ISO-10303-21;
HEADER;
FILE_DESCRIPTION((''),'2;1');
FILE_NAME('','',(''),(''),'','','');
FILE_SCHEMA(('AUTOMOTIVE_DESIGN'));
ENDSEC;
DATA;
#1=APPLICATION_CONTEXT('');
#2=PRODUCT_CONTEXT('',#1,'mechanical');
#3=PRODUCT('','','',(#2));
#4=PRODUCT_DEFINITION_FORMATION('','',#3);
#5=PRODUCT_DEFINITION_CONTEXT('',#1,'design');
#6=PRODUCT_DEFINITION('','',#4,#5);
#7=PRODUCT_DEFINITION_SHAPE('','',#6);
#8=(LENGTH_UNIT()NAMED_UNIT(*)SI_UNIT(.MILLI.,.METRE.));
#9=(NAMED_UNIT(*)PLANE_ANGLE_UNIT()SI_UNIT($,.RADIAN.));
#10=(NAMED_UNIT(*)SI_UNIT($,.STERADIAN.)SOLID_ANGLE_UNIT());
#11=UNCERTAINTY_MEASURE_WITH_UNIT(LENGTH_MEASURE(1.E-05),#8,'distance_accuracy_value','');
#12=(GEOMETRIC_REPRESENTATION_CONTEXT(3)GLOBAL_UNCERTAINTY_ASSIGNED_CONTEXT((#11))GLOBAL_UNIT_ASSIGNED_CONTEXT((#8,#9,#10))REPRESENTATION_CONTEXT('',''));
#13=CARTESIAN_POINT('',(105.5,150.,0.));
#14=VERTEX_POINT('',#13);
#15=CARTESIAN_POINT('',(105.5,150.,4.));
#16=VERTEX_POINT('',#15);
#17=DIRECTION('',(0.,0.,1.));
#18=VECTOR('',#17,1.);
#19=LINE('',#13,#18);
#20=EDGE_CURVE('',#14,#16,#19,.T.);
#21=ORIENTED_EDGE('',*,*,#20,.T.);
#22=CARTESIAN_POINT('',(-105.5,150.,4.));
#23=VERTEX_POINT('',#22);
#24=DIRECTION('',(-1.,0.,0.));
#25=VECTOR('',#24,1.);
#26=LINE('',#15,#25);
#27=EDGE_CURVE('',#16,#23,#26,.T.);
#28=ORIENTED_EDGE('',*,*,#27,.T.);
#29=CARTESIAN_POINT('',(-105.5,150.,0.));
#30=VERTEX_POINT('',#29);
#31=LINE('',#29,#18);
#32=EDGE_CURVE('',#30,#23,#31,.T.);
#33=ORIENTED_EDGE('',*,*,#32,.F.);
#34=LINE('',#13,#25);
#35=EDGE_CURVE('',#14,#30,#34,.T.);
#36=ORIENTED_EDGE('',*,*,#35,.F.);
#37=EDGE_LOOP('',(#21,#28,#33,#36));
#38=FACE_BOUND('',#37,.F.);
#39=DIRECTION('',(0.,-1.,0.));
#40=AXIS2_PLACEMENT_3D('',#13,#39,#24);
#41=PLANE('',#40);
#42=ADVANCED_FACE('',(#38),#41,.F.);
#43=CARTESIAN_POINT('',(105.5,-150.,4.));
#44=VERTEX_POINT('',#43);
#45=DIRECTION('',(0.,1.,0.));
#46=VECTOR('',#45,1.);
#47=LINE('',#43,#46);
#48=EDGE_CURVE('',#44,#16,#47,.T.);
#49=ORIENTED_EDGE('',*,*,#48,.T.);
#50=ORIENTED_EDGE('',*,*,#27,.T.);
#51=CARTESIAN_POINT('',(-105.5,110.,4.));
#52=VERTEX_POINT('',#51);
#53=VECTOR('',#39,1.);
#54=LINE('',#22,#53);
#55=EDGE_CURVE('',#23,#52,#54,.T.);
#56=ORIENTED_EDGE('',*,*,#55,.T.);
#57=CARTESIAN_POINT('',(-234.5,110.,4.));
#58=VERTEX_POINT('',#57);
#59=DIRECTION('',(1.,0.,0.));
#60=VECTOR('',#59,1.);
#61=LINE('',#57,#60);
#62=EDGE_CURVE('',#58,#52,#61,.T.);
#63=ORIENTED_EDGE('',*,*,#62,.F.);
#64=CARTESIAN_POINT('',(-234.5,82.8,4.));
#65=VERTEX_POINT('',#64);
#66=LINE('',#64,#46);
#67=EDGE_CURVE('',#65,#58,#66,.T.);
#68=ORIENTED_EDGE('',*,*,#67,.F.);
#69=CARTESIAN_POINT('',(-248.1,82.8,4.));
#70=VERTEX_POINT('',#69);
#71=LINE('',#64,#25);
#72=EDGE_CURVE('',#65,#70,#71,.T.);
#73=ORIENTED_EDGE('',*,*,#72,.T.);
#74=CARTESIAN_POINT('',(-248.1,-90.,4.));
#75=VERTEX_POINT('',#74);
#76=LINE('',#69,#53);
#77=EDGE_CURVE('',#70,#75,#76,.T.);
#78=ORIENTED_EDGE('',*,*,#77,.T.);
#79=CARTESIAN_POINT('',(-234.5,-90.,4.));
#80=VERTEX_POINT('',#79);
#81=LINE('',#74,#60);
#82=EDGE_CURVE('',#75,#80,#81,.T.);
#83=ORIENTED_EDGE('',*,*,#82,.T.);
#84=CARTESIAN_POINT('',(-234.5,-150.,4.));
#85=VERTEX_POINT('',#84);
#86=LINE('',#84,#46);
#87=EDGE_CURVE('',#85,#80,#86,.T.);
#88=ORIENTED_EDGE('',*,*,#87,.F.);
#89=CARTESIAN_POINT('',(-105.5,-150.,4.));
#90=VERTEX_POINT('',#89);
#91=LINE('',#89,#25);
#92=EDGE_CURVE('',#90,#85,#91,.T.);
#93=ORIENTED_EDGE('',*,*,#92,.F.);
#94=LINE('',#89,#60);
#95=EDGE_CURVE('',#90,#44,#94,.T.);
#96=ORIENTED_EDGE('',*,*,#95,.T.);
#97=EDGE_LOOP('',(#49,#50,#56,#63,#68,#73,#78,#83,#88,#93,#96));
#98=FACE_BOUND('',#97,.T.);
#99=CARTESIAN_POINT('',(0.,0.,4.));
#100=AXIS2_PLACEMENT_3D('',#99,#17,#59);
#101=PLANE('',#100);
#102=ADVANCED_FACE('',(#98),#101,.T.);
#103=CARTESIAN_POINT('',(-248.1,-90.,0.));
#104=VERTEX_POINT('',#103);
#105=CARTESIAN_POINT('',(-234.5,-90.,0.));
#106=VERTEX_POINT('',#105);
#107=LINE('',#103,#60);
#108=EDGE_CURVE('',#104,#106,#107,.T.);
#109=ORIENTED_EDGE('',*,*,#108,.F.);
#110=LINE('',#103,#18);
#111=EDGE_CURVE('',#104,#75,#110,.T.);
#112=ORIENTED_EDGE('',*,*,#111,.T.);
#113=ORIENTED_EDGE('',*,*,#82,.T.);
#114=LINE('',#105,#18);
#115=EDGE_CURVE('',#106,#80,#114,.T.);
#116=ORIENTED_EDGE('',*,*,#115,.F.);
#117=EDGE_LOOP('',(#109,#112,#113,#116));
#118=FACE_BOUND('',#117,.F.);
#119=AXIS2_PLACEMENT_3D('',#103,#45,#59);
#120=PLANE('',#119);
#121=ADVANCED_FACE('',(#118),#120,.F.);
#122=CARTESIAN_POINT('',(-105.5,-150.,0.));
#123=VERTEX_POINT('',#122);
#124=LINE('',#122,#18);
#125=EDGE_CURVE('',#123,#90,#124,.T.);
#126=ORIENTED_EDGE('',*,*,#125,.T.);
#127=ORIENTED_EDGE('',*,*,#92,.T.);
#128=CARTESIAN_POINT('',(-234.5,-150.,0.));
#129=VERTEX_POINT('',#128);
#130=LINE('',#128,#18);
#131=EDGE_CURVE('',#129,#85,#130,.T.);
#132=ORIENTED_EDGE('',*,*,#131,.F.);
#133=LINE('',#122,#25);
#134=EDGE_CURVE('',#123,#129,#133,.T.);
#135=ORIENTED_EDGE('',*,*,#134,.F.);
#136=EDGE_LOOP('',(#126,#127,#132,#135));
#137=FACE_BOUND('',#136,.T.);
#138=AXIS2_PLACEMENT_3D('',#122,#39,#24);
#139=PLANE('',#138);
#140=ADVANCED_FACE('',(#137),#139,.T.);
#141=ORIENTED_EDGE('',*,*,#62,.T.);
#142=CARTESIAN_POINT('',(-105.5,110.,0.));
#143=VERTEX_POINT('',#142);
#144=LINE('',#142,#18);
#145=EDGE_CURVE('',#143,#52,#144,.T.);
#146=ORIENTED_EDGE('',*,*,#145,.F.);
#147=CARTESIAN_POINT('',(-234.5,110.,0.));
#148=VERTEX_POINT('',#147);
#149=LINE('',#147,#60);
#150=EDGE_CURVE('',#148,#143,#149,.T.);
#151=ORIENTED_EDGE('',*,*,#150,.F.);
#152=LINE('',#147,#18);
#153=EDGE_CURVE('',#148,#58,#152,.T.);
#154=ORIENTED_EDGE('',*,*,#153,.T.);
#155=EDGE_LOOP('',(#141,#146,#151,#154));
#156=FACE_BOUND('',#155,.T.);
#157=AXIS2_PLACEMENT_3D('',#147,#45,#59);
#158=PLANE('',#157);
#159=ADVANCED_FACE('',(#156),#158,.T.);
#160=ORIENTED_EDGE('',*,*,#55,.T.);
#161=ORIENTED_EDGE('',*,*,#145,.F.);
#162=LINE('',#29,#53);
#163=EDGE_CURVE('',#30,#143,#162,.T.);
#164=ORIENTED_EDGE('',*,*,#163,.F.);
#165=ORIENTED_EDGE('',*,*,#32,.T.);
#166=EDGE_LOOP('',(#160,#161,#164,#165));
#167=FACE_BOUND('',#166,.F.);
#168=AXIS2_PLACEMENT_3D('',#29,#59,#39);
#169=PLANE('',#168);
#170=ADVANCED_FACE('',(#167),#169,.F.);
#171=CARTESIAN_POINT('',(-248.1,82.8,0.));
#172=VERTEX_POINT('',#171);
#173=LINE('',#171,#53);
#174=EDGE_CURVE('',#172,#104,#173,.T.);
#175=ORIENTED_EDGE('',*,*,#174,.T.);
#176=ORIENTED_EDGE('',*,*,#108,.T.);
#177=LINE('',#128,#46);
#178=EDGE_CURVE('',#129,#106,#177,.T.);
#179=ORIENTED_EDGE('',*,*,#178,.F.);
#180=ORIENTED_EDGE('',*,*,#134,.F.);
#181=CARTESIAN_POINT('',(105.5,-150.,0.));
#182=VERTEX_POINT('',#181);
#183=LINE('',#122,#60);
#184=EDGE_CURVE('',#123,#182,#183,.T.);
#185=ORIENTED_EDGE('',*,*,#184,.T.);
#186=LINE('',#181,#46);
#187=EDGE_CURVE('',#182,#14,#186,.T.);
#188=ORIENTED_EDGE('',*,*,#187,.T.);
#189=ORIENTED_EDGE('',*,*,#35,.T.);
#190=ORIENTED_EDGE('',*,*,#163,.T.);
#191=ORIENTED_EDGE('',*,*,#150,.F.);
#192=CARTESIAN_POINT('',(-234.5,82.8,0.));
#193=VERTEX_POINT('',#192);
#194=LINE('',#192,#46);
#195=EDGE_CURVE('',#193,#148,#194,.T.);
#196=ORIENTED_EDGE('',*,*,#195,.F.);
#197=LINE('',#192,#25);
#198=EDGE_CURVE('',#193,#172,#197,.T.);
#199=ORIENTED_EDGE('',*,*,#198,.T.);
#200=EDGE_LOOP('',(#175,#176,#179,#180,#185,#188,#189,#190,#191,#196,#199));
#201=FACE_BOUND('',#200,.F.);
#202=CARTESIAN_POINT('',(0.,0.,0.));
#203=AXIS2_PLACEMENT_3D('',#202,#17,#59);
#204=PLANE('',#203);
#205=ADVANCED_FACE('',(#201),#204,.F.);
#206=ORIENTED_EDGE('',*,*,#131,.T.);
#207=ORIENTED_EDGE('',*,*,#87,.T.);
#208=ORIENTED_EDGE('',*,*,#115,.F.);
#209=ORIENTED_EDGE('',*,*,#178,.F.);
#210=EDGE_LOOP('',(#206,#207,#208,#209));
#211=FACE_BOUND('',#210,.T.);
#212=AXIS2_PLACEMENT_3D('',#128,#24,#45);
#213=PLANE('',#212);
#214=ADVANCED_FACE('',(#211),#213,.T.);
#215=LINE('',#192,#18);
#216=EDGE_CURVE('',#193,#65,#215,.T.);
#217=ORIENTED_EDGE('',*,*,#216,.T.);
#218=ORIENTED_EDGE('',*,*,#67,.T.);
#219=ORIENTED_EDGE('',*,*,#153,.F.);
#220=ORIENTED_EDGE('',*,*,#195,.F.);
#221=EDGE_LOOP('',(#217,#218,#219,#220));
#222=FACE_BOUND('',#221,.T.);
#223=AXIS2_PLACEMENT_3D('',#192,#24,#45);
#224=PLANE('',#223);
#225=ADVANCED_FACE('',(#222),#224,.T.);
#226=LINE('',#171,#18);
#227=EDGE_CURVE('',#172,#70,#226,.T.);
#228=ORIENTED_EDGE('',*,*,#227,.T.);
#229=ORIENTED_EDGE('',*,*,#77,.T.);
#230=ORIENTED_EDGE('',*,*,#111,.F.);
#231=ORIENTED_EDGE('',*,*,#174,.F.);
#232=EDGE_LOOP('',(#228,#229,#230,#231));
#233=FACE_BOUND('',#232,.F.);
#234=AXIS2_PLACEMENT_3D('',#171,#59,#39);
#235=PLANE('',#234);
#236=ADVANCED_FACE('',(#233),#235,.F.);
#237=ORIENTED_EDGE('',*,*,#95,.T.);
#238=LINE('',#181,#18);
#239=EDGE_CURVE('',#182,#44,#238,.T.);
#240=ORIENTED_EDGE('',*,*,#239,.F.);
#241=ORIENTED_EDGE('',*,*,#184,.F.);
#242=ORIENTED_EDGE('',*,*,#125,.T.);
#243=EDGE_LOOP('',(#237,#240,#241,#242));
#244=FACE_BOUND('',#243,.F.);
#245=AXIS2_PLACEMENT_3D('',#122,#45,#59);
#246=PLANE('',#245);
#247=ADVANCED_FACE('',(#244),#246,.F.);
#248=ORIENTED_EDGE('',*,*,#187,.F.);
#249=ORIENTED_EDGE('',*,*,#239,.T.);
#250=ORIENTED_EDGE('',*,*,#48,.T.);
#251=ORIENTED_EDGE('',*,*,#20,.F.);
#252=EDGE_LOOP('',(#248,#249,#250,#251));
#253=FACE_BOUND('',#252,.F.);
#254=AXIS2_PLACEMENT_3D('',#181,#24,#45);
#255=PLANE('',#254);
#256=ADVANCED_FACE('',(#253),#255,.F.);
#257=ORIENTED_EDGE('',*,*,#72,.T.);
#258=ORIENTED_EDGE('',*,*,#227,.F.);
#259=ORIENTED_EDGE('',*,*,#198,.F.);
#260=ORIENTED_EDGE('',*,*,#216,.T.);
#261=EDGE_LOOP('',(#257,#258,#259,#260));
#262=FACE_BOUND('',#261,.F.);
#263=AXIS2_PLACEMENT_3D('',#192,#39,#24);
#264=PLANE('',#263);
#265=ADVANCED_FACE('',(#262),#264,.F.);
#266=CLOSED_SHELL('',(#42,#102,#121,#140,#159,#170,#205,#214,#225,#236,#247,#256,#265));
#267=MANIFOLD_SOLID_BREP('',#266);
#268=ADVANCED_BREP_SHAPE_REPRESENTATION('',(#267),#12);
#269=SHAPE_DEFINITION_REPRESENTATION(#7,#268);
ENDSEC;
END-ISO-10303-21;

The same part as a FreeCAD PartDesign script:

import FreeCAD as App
import Part
import Sketcher

V = App.Vector

doc = App.newDocument("Part")
body = doc.addObject("PartDesign::Body", "Body")

sketch1 = doc.addObject("Sketcher::SketchObject", "Sketch")
body.addObject(sketch1)
sketch1.AttachmentSupport = (doc.XY_Plane, [""])
sketch1.MapMode = "FlatFace"
sketch1.addGeometry(Part.LineSegment(V(-234.5, -150, 0), V(105.5, -150, 0)), False)
sketch1.addGeometry(Part.LineSegment(V(105.5, -150, 0), V(105.5, 150, 0)), False)
sketch1.addGeometry(Part.LineSegment(V(105.5, 150, 0), V(-105.5, 150, 0)), False)
sketch1.addGeometry(Part.LineSegment(V(-105.5, 150, 0), V(-105.5, 110, 0)), False)
sketch1.addGeometry(Part.LineSegment(V(-105.5, 110, 0), V(-234.5, 110, 0)), False)
sketch1.addGeometry(Part.LineSegment(V(-234.5, 110, 0), V(-234.5, 82.8, 0)), False)
sketch1.addGeometry(Part.LineSegment(V(-234.5, 82.8, 0), V(-248.1, 82.8, 0)), False)
sketch1.addGeometry(Part.LineSegment(V(-248.1, 82.8, 0), V(-248.1, -90, 0)), False)
sketch1.addGeometry(Part.LineSegment(V(-248.1, -90, 0), V(-234.5, -90, 0)), False)
sketch1.addGeometry(Part.LineSegment(V(-234.5, -90, 0), V(-234.5, -150, 0)), False)
sketch1.addConstraint(Sketcher.Constraint("Coincident", 0, 2, 1, 1))
sketch1.addConstraint(Sketcher.Constraint("Coincident", 1, 2, 2, 1))
sketch1.addConstraint(Sketcher.Constraint("Coincident", 2, 2, 3, 1))
sketch1.addConstraint(Sketcher.Constraint("Coincident", 3, 2, 4, 1))
sketch1.addConstraint(Sketcher.Constraint("Coincident", 4, 2, 5, 1))
sketch1.addConstraint(Sketcher.Constraint("Coincident", 5, 2, 6, 1))
sketch1.addConstraint(Sketcher.Constraint("Coincident", 6, 2, 7, 1))
sketch1.addConstraint(Sketcher.Constraint("Coincident", 7, 2, 8, 1))
sketch1.addConstraint(Sketcher.Constraint("Coincident", 8, 2, 9, 1))
sketch1.addConstraint(Sketcher.Constraint("Coincident", 9, 2, 0, 1))
sketch1.addConstraint(Sketcher.Constraint("Horizontal", 0))
sketch1.addConstraint(Sketcher.Constraint("Vertical", 1))
sketch1.addConstraint(Sketcher.Constraint("Horizontal", 2))
sketch1.addConstraint(Sketcher.Constraint("Vertical", 3))
sketch1.addConstraint(Sketcher.Constraint("Horizontal", 4))
sketch1.addConstraint(Sketcher.Constraint("Vertical", 5))
sketch1.addConstraint(Sketcher.Constraint("Horizontal", 6))
sketch1.addConstraint(Sketcher.Constraint("Vertical", 7))
sketch1.addConstraint(Sketcher.Constraint("Horizontal", 8))
sketch1.addConstraint(Sketcher.Constraint("Vertical", 9))
sketch1.addConstraint(Sketcher.Constraint("Symmetric", 0, 2, 2, 2, -1, 1))
sketch1.addConstraint(Sketcher.Constraint("Vertical", 5, 2, 8, 2))
sketch1.addConstraint(Sketcher.Constraint("DistanceX", 0, 1, 0, 2, 340.0))
sketch1.addConstraint(Sketcher.Constraint("DistanceX", 2, 2, 2, 1, 211.0))
sketch1.addConstraint(Sketcher.Constraint("DistanceY", 1, 1, 1, 2, 300.0))
sketch1.addConstraint(Sketcher.Constraint("DistanceY", 3, 2, 3, 1, 40.0))
sketch1.addConstraint(Sketcher.Constraint("DistanceX", 6, 2, 6, 1, 13.6))
sketch1.addConstraint(Sketcher.Constraint("DistanceY", 5, 2, 5, 1, 27.2))
sketch1.addConstraint(Sketcher.Constraint("DistanceY", 7, 2, 4, 2, 200.0))
pad1 = doc.addObject("PartDesign::Pad", "Pad")
body.addObject(pad1)
pad1.Profile = sketch1
pad1.Length = 4

doc.recompute()
